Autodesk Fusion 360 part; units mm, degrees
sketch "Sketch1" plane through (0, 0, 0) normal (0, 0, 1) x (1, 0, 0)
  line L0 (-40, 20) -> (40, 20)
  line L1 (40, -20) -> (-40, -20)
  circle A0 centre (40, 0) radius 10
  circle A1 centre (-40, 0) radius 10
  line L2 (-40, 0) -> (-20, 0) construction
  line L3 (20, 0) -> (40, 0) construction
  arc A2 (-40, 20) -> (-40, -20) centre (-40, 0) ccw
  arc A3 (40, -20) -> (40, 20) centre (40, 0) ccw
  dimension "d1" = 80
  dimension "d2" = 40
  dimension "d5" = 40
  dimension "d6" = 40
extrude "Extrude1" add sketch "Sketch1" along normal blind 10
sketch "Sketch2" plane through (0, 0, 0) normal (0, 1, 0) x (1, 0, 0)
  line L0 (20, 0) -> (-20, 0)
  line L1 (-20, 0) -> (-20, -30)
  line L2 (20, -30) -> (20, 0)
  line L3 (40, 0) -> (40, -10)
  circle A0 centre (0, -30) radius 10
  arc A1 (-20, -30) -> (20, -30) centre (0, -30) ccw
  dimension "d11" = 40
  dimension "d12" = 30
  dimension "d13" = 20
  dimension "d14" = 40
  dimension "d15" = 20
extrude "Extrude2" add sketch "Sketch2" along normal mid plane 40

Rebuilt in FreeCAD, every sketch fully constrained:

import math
import FreeCAD as App
import Part
import Sketcher
from FreeCAD import Vector
Q = App.Units.Quantity

doc = App.newDocument("Part")
body = doc.addObject("PartDesign::Body", "Body")

sketch1 = body.newObject("Sketcher::SketchObject", "Sketch")
sketch1.AttachmentSupport = (doc.getObject("XY_Plane"), [""])
sketch1.MapMode = "FlatFace"
sketch1.addGeometry([
    Part.LineSegment(Vector(40, 20, 0), Vector(-40, 20, 0)),
    Part.ArcOfCircle(Part.Circle(Vector(-40, 0, 0), Vector(0, 0, 1), 20), math.radians(90), math.radians(270)),
    Part.LineSegment(Vector(-40, -20, 0), Vector(40, -20, 0)),
    Part.ArcOfCircle(Part.Circle(Vector(40, 0, 0), Vector(0, 0, 1), 20), math.radians(-90), math.radians(90)),
    Part.Circle(Vector(-40, 0, 0), Vector(0, 0, 1), 10),
    Part.Circle(Vector(40, 0, 0), Vector(0, 0, 1), 10),
], False)
sketch1.addConstraint([
    Sketcher.Constraint("Tangent", 0, 2, 1, 1),
    Sketcher.Constraint("Tangent", 1, 2, 2, 1),
    Sketcher.Constraint("Tangent", 2, 2, 3, 1),
    Sketcher.Constraint("Tangent", 3, 2, 0, 1),
    Sketcher.Constraint("Horizontal", 0),
    Sketcher.Constraint("Horizontal", 2),
    Sketcher.Constraint("Coincident", 4, 3, 1, 3),
    Sketcher.Constraint("Coincident", 5, 3, 3, 3),
    Sketcher.Constraint("Equal", 4, 5),
    Sketcher.Constraint("Symmetric", 1, 3, 3, 3, -1, 1),
    Sketcher.Constraint("Radius", 1, Q("20 mm")),
    Sketcher.Constraint("DistanceX", 0, 2, 0, 1, Q("80 mm")),
    Sketcher.Constraint("Diameter", 4, Q("20 mm")),
])
pad1 = body.newObject("PartDesign::Pad", "Pad")
pad1.Profile = sketch1
pad1.Length = 10

sketch2 = body.newObject("Sketcher::SketchObject", "Sketch001")
sketch2.AttachmentSupport = (doc.getObject("XZ_Plane"), [""])
sketch2.MapMode = "FlatFace"
sketch2.addGeometry([
    Part.LineSegment(Vector(20, 30, 0), Vector(20, 0, 0)),
    Part.LineSegment(Vector(20, 0, 0), Vector(-20, 0, 0)),
    Part.LineSegment(Vector(-20, 0, 0), Vector(-20, 30, 0)),
    Part.ArcOfCircle(Part.Circle(Vector(0, 30, 0), Vector(0, 0, 1), 20), math.radians(0), math.radians(180)),
    Part.Circle(Vector(0, 30, 0), Vector(0, 0, 1), 10),
], False)
sketch2.addConstraint([
    Sketcher.Constraint("Coincident", 0, 2, 1, 1),
    Sketcher.Constraint("Coincident", 1, 2, 2, 1),
    Sketcher.Constraint("Tangent", 2, 2, 3, 2),
    Sketcher.Constraint("Tangent", 3, 1, 0, 1),
    Sketcher.Constraint("Vertical", 0),
    Sketcher.Constraint("Horizontal", 1),
    Sketcher.Constraint("Vertical", 2),
    Sketcher.Constraint("Coincident", 4, 3, 3, 3),
    Sketcher.Constraint("Symmetric", 0, 2, 1, 2, -1, 1),
    Sketcher.Constraint("Diameter", 4, Q("20 mm")),
    Sketcher.Constraint("Radius", 3, Q("20 mm")),
    Sketcher.Constraint("DistanceY", 0, 2, 0, 1, Q("30 mm")),
])
pad2 = body.newObject("PartDesign::Pad", "Pad001")
pad2.Profile = sketch2
pad2.Length = 40
pad2.Midplane = True

doc.recompute()
